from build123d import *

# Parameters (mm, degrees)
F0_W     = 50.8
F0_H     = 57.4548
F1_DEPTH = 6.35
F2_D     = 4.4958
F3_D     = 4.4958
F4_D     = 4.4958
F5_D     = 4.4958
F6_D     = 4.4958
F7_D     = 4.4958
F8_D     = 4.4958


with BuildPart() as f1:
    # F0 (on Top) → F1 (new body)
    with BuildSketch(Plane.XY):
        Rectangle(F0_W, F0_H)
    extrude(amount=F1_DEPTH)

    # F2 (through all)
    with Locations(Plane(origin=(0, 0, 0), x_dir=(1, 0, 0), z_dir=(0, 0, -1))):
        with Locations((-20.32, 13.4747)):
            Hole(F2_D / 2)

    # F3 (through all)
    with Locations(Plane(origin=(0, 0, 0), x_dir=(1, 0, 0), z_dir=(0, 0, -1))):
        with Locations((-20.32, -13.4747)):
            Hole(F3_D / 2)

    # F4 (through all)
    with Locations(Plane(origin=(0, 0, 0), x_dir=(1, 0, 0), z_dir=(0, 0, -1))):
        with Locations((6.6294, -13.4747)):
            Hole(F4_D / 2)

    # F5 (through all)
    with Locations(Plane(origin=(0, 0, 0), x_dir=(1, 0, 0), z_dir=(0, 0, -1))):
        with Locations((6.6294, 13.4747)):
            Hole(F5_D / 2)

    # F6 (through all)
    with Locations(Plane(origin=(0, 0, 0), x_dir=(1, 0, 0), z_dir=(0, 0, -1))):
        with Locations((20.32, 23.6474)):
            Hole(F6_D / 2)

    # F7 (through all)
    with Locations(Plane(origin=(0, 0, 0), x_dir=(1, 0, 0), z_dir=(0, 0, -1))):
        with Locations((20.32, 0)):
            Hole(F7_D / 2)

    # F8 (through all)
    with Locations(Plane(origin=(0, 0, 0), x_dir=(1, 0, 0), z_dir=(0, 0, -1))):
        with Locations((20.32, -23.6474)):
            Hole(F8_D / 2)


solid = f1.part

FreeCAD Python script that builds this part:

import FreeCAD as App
import Part
import Sketcher
from FreeCAD import Vector
Q = App.Units.Quantity


def add_polygon(sketch, points):
    """Adds a closed chain of lines whose ends are joined by coincident constraints."""
    first, n = sketch.GeometryCount, len(points)
    for a, b in zip(points, points[1:] + points[:1]):
        sketch.addGeometry(Part.LineSegment(App.Vector(*a, 0), App.Vector(*b, 0)), False)
    for i in range(n):
        sketch.addConstraint(Sketcher.Constraint("Coincident", first + i, 2, first + (i + 1) % n, 1))

doc = App.newDocument("Part")
body = doc.addObject("PartDesign::Body", "Body")

# Sketch on XY plane
sketch1 = body.newObject("Sketcher::SketchObject", "Sketch")
sketch1.AttachmentSupport = (doc.getObject("XY_Plane"), [""])
sketch1.MapMode = "FlatFace"
add_polygon(sketch1, [(-25, 29), (-25, -29), (25, -29), (25, 29)])  # lines 0-3
sketch1.addConstraint([
    Sketcher.Constraint("Vertical", 0),
    Sketcher.Constraint("Horizontal", 1),
    Sketcher.Constraint("Vertical", 2),
    Sketcher.Constraint("Horizontal", 3),
    Sketcher.Constraint("Symmetric", 0, 2, 2, 2, -1, 1),
    Sketcher.Constraint("DistanceX", 1, 1, 1, 2, Q("2 in")),
    Sketcher.Constraint("DistanceY", 0, 2, 0, 1, Q("2.262 in")),
])
pad1 = body.newObject("PartDesign::Pad", "Pad")
pad1.Profile = sketch1
pad1.Length = Q("0.25 in")

# Sketch on XY plane
sketch2 = body.newObject("Sketcher::SketchObject", "Sketch001")
sketch2.AttachmentSupport = (doc.getObject("XY_Plane"), [""])
sketch2.MapMode = "FlatFace"
sketch2.addGeometry(Part.Circle(Vector(-20.3, -13.5, 0), Vector(0, 0, 1), 2.2), False)
sketch2.addConstraint([
    Sketcher.Constraint("Diameter", 0, Q("0.177 in")),
    Sketcher.Constraint("DistanceX", 0, 3, -1, 1, Q("0.8 in")),
    Sketcher.Constraint("DistanceY", 0, 3, -1, 1, Q("0.5305 in")),
])
doc.recompute()
hole = body.newObject("PartDesign::Hole", "Hole")
hole.Profile = sketch2
hole.ThreadType = "None"
hole.Diameter = Q("0.177 in")
hole.DepthType = "ThroughAll"
hole.Reversed = True

# Sketch on XY plane
sketch3 = body.newObject("Sketcher::SketchObject", "Sketch002")
sketch3.AttachmentSupport = (doc.getObject("XY_Plane"), [""])
sketch3.MapMode = "FlatFace"
sketch3.addGeometry(Part.Circle(Vector(-20.3, 13.5, 0), Vector(0, 0, 1), 2.2), False)
sketch3.addConstraint([
    Sketcher.Constraint("Diameter", 0, Q("0.177 in")),
    Sketcher.Constraint("DistanceX", 0, 3, -1, 1, Q("0.8 in")),
    Sketcher.Constraint("DistanceY", -1, 1, 0, 3, Q("0.5305 in")),
])
doc.recompute()
hole2 = body.newObject("PartDesign::Hole", "Hole001")
hole2.Profile = sketch3
hole2.ThreadType = "None"
hole2.Diameter = Q("0.177 in")
hole2.DepthType = "ThroughAll"
hole2.Reversed = True

# Sketch on XY plane
sketch4 = body.newObject("Sketcher::SketchObject", "Sketch003")
sketch4.AttachmentSupport = (doc.getObject("XY_Plane"), [""])
sketch4.MapMode = "FlatFace"
sketch4.addGeometry(Part.Circle(Vector(6.6, 13.5, 0), Vector(0, 0, 1), 2.2), False)
sketch4.addConstraint([
    Sketcher.Constraint("Diameter", 0, Q("0.177 in")),
    Sketcher.Constraint("DistanceX", -1, 1, 0, 3, Q("0.261 in")),
    Sketcher.Constraint("DistanceY", -1, 1, 0, 3, Q("0.5305 in")),
])
doc.recompute()
hole3 = body.newObject("PartDesign::Hole", "Hole002")
hole3.Profile = sketch4
hole3.ThreadType = "None"
hole3.Diameter = Q("0.177 in")
hole3.DepthType = "ThroughAll"
hole3.Reversed = True

# Sketch on XY plane
sketch5 = body.newObject("Sketcher::SketchObject", "Sketch004")
sketch5.AttachmentSupport = (doc.getObject("XY_Plane"), [""])
sketch5.MapMode = "FlatFace"
sketch5.addGeometry(Part.Circle(Vector(6.6, -13.5, 0), Vector(0, 0, 1), 2.2), False)
sketch5.addConstraint([
    Sketcher.Constraint("Diameter", 0, Q("0.177 in")),
    Sketcher.Constraint("DistanceX", -1, 1, 0, 3, Q("0.261 in")),
    Sketcher.Constraint("DistanceY", 0, 3, -1, 1, Q("0.5305 in")),
])
doc.recompute()
hole4 = body.newObject("PartDesign::Hole", "Hole003")
hole4.Profile = sketch5
hole4.ThreadType = "None"
hole4.Diameter = Q("0.177 in")
hole4.DepthType = "ThroughAll"
hole4.Reversed = True

# Sketch on XY plane
sketch6 = body.newObject("Sketcher::SketchObject", "Sketch005")
sketch6.AttachmentSupport = (doc.getObject("XY_Plane"), [""])
sketch6.MapMode = "FlatFace"
sketch6.addGeometry(Part.Circle(Vector(20.3, -23.6, 0), Vector(0, 0, 1), 2.2), False)
sketch6.addConstraint([
    Sketcher.Constraint("Diameter", 0, Q("0.177 in")),
    Sketcher.Constraint("DistanceX", -1, 1, 0, 3, Q("0.8 in")),
    Sketcher.Constraint("DistanceY", 0, 3, -1, 1, Q("0.931 in")),
])
doc.recompute()
hole5 = body.newObject("PartDesign::Hole", "Hole004")
hole5.Profile = sketch6
hole5.ThreadType = "None"
hole5.Diameter = Q("0.177 in")
hole5.DepthType = "ThroughAll"
hole5.Reversed = True

# Sketch on XY plane
sketch7 = body.newObject("Sketcher::SketchObject", "Sketch006")
sketch7.AttachmentSupport = (doc.getObject("XY_Plane"), [""])
sketch7.MapMode = "FlatFace"
sketch7.addGeometry(Part.Circle(Vector(20.3, 0, 0), Vector(0, 0, 1), 2.2), False)
sketch7.addConstraint([
    Sketcher.Constraint("PointOnObject", 0, 3, -1),
    Sketcher.Constraint("Diameter", 0, Q("0.177 in")),
    Sketcher.Constraint("DistanceX", -1, 1, 0, 3, Q("0.8 in")),
])
doc.recompute()
hole6 = body.newObject("PartDesign::Hole", "Hole005")
hole6.Profile = sketch7
hole6.ThreadType = "None"
hole6.Diameter = Q("0.177 in")
hole6.DepthType = "ThroughAll"
hole6.Reversed = True

# Sketch on XY plane
sketch8 = body.newObject("Sketcher::SketchObject", "Sketch007")
sketch8.AttachmentSupport = (doc.getObject("XY_Plane"), [""])
sketch8.MapMode = "FlatFace"
sketch8.addGeometry(Part.Circle(Vector(20.3, 23.6, 0), Vector(0, 0, 1), 2.2), False)
sketch8.addConstraint([
    Sketcher.Constraint("Diameter", 0, Q("0.177 in")),
    Sketcher.Constraint("DistanceX", -1, 1, 0, 3, Q("0.8 in")),
    Sketcher.Constraint("DistanceY", -1, 1, 0, 3, Q("0.931 in")),
])
doc.recompute()
hole7 = body.newObject("PartDesign::Hole", "Hole006")
hole7.Profile = sketch8
hole7.ThreadType = "None"
hole7.Diameter = Q("0.177 in")
hole7.DepthType = "ThroughAll"
hole7.Reversed = True

doc.recompute()
